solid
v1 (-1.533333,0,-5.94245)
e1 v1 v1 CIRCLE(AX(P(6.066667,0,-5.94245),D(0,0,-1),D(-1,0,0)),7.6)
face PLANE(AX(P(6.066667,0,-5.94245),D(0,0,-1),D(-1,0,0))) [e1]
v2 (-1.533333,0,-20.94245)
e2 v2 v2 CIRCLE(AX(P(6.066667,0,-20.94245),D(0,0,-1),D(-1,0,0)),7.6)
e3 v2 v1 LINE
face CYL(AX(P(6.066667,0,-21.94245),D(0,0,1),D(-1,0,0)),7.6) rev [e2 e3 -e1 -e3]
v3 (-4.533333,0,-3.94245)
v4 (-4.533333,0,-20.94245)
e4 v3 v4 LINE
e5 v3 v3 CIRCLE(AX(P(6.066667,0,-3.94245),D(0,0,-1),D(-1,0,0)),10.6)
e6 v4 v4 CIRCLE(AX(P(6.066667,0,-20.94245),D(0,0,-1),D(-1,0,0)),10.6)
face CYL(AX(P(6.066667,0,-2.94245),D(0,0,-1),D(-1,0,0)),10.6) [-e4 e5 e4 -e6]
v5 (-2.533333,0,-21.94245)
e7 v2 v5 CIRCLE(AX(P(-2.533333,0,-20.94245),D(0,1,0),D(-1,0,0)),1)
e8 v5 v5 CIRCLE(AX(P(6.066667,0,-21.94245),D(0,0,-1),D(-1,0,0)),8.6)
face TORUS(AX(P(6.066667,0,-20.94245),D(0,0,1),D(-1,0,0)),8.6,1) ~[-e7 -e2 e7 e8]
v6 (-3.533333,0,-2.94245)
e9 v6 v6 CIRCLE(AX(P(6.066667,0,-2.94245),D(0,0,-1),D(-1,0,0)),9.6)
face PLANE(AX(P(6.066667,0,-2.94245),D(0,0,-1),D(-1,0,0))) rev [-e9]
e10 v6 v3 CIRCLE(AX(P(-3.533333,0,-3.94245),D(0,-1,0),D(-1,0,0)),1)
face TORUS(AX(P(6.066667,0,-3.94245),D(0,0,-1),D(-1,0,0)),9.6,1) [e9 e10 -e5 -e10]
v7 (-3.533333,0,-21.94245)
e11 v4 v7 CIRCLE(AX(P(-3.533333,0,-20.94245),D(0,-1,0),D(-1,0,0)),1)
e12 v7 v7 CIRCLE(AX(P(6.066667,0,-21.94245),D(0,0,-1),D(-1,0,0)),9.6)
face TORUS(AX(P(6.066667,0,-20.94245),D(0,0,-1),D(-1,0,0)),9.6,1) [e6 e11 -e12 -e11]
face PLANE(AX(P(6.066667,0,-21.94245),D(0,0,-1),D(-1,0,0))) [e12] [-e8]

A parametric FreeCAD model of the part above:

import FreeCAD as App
import Part
import Sketcher
from FreeCAD import Vector
Q = App.Units.Quantity


def edges_at(feature, points):
    """Names of the edges that pass closest to the given points."""
    edges = feature.Shape.Edges
    near = lambda p: min(range(len(edges)), key=lambda i: edges[i].distToShape(Part.Vertex(*p))[0])
    return sorted({f"Edge{near(p) + 1}" for p in points})


def add_polygon(sketch, points):
    """Adds a closed chain of lines whose ends are joined by coincident constraints."""
    first, n = sketch.GeometryCount, len(points)
    for a, b in zip(points, points[1:] + points[:1]):
        sketch.addGeometry(Part.LineSegment(App.Vector(*a, 0), App.Vector(*b, 0)), False)
    for i in range(n):
        sketch.addConstraint(Sketcher.Constraint("Coincident", first + i, 2, first + (i + 1) % n, 1))

doc = App.newDocument("Part")
body = doc.addObject("PartDesign::Body", "Body")

# Sketch on XZ plane
sketch1 = doc.addObject("Sketcher::SketchObject", "Sketch")
body.addObject(sketch1)
sketch1.AttachmentSupport = (doc.XZ_Plane, [""])
sketch1.MapMode = "FlatFace"
add_polygon(sketch1, [(-1.5, -21.9), (-1.5, -5.9), (6.1, -5.9), (6.1, -2.9), (-4.5, -2.9), (-4.5, -21.9)])  # lines 0-5
sketch1.addGeometry(Part.LineSegment(Vector(6.1, -2.9, 0), Vector(6.1, -21.9, 0)), True)  # axis
sketch1.addConstraint([
    Sketcher.Constraint("Vertical", 0),
    Sketcher.Constraint("Horizontal", 1),
    Sketcher.Constraint("Vertical", 2),
    Sketcher.Constraint("Horizontal", 3),
    Sketcher.Constraint("Vertical", 4),
    Sketcher.Constraint("Horizontal", 5),
    Sketcher.Constraint("Vertical", 6),
    Sketcher.Constraint("Coincident", 6, 1, 2, 2),
    Sketcher.Constraint("Horizontal", 5, 2, 6, 2),
    Sketcher.Constraint("Equal", 5, 2),
    Sketcher.Constraint("DistanceX", 5, 1, 5, 2, Q("3 mm")),
    Sketcher.Constraint("DistanceY", 0, 1, 0, 2, Q("16 mm")),
    Sketcher.Constraint("DistanceX", 1, 1, 1, 2, Q("7.6 mm")),
    Sketcher.Constraint("DistanceY", 0, 2, -1, 1, Q("5.94245 mm")),
    Sketcher.Constraint("DistanceX", 0, 2, -1, 1, Q("1.533333 mm")),
])
revolution = doc.addObject("PartDesign::Revolution", "Revolution")
body.addObject(revolution)
revolution.Profile = sketch1
revolution.ReferenceAxis = (sketch1, ["Axis0"])
revolution.Angle = 360
doc.recompute()

fillet = doc.addObject("PartDesign::Fillet", "Fillet")
body.addObject(fillet)
fillet.Base = (revolution, edges_at(revolution, [
    (16.667, 0, -21.942),
    (13.667, 0, -21.942),
    (16.667, 0, -2.942),
    (-4.533, 0, -12.442),
]))
fillet.Radius = 1

doc.recompute()
